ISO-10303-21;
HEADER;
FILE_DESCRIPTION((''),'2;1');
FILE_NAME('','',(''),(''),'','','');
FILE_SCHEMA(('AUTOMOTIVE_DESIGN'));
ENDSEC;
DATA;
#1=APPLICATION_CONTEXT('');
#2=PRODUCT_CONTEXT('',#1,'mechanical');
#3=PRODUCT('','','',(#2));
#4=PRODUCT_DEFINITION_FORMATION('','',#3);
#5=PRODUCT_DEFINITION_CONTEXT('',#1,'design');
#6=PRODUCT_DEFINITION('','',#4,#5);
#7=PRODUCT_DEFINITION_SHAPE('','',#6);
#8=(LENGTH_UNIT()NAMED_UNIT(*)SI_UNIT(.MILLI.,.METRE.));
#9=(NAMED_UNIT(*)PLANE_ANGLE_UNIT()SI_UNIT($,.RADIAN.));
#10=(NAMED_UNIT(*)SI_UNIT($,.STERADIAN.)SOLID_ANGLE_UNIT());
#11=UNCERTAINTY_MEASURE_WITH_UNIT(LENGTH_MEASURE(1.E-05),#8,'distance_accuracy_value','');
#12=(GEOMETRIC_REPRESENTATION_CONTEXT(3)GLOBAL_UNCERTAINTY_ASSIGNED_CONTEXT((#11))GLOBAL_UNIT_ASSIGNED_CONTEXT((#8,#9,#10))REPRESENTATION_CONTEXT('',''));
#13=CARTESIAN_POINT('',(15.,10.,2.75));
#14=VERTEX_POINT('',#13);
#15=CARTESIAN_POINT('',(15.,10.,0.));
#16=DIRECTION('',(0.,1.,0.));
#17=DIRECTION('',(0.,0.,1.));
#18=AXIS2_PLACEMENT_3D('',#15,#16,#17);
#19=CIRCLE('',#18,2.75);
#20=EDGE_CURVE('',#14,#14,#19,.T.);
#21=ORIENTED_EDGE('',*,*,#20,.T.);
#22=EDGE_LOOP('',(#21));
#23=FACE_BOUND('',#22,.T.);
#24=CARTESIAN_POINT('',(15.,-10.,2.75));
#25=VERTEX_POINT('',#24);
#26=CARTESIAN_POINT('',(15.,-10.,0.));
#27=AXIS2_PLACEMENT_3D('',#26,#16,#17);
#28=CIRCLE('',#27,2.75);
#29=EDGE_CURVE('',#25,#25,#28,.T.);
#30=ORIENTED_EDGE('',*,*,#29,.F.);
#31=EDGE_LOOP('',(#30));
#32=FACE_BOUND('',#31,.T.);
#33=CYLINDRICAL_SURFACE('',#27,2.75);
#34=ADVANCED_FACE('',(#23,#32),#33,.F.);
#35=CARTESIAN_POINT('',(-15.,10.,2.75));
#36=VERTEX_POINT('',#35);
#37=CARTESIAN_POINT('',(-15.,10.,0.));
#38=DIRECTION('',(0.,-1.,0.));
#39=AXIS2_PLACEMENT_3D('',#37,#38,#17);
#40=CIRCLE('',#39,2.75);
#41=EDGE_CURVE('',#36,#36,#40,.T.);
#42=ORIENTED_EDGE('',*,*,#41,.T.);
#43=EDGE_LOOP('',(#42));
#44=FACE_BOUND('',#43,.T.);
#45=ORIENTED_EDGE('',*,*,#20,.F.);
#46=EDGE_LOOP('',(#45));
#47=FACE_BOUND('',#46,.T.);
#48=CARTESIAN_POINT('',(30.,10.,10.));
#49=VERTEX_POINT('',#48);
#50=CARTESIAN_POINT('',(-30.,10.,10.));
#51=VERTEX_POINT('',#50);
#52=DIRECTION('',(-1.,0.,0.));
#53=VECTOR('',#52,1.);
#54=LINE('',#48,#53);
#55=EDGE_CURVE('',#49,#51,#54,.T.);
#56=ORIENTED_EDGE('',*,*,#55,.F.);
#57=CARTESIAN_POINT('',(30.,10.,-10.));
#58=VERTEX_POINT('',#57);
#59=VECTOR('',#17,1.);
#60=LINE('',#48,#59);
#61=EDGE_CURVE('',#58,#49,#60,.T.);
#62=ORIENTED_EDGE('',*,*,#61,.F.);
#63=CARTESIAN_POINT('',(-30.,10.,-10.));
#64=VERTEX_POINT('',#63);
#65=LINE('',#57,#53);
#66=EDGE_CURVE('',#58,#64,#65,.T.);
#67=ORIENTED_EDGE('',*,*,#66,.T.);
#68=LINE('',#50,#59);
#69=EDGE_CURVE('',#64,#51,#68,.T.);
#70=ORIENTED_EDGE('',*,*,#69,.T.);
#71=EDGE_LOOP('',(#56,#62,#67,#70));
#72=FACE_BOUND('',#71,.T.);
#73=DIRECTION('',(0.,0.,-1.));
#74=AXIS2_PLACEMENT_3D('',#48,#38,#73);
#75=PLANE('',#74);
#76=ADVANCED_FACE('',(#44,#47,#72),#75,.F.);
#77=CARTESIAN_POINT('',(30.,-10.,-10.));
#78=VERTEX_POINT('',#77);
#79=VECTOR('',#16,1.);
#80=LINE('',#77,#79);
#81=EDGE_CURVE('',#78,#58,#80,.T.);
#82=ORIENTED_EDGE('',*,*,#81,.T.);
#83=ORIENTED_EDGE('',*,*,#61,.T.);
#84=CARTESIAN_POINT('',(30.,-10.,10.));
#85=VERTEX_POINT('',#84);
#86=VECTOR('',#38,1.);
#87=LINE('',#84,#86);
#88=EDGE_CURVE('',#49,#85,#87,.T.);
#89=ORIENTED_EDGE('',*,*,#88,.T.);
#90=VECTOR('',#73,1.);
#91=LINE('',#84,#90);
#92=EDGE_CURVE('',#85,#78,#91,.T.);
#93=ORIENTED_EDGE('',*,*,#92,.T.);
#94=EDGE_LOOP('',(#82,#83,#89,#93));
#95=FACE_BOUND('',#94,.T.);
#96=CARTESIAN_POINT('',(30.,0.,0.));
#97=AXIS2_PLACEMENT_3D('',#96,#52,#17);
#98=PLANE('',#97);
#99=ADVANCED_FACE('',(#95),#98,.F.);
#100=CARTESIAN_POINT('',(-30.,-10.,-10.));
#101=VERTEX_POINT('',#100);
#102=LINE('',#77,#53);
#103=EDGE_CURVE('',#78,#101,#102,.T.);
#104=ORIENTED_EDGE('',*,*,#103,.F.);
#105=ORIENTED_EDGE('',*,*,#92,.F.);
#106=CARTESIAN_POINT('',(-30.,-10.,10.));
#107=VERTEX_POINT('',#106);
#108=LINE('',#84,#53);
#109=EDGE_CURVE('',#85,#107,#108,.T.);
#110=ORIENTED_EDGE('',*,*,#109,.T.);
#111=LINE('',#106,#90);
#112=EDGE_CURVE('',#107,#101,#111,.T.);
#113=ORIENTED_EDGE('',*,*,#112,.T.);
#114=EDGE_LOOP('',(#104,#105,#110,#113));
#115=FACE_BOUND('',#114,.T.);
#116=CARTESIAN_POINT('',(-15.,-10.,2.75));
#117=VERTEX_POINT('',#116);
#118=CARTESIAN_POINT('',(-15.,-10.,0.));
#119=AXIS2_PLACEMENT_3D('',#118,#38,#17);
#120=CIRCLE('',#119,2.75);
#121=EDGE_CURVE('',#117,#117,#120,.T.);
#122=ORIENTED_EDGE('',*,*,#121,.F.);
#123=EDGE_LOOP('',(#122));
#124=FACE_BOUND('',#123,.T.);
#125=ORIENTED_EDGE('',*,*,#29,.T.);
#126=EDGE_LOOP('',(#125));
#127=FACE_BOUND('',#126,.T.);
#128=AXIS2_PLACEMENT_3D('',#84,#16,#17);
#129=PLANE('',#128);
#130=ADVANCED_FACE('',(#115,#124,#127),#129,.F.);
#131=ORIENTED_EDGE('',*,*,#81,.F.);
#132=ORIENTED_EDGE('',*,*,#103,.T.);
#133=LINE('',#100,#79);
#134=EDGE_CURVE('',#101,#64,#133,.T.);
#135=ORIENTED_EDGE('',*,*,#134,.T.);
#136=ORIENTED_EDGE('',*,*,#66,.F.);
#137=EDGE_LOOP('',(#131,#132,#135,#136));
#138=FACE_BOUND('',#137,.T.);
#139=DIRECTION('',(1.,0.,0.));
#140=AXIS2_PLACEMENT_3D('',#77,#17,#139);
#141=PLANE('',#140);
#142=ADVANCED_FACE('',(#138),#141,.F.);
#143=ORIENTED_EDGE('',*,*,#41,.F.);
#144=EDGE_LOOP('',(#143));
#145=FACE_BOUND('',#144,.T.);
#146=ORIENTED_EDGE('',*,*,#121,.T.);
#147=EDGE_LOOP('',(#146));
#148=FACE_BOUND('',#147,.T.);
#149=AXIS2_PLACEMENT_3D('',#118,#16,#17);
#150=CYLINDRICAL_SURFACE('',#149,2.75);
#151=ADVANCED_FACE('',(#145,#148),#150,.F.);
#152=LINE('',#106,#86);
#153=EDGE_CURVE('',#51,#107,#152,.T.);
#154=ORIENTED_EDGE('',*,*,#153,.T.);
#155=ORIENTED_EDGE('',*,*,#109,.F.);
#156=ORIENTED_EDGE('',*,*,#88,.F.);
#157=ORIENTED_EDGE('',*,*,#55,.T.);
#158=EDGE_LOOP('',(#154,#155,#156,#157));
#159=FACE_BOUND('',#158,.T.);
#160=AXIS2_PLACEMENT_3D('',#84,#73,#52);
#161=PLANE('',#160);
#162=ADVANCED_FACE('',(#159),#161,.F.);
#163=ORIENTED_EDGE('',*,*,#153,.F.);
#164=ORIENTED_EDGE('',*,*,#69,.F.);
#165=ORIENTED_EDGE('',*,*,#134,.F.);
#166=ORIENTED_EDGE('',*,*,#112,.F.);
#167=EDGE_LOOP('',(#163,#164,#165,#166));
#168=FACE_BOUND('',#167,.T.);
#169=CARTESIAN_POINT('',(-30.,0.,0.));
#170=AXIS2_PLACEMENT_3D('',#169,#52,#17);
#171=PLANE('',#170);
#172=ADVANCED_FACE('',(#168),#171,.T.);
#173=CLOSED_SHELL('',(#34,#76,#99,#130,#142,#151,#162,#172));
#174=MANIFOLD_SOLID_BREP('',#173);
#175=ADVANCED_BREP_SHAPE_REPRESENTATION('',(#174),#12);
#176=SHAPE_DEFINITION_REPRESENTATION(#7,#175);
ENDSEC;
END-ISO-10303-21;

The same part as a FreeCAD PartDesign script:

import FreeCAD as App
import Part
import Sketcher
Q = App.Units.Quantity


def add_polygon(sketch, points):
    """Adds a closed chain of lines whose ends are joined by coincident constraints."""
    first, n = sketch.GeometryCount, len(points)
    for a, b in zip(points, points[1:] + points[:1]):
        sketch.addGeometry(Part.LineSegment(App.Vector(*a, 0), App.Vector(*b, 0)), False)
    for i in range(n):
        sketch.addConstraint(Sketcher.Constraint("Coincident", first + i, 2, first + (i + 1) % n, 1))

doc = App.newDocument("Part")
params = doc.addObject("Spreadsheet::Sheet", "Params")
for row, (alias, value) in enumerate([
    ("sketch1_width", "20 mm"),
    ("pad1_length", "60 mm"),
    ("sketch2_diameter", "5.5 mm"),
], start=1):
    params.set(f"A{row}", alias)
    params.set(f"B{row}", "=" + value)
    params.setAlias(f"B{row}", alias)

body = doc.addObject("PartDesign::Body", "Body")

# Sketch on YZ plane
sketch1 = body.newObject("Sketcher::SketchObject", "Sketch")
sketch1.AttachmentSupport = (doc.getObject("YZ_Plane"), [""])
sketch1.MapMode = "FlatFace"
add_polygon(sketch1, [(10, 10), (-10, 10), (-10, -10), (10, -10)])  # lines 0-3
sketch1.addConstraint(Sketcher.Constraint("Horizontal", 0))
sketch1.addConstraint(Sketcher.Constraint("Vertical", 1))
sketch1.addConstraint(Sketcher.Constraint("Horizontal", 2))
sketch1.addConstraint(Sketcher.Constraint("Vertical", 3))
sketch1.addConstraint(Sketcher.Constraint("Symmetric", 0, 2, 2, 2, -1, 1))
sketch1.addConstraint(Sketcher.Constraint("Equal", 2, 1))
sketch1.addConstraint(Sketcher.Constraint("DistanceX", 0, 2, 0, 1, Q("20 mm")))
sketch1.setExpression("Constraints[10]", "Params.sketch1_width")
pad1 = body.newObject("PartDesign::Pad", "Pad")
pad1.Profile = sketch1
pad1.setExpression("Length", "Params.pad1_length")
pad1.Midplane = True

# Sketch on XZ plane
sketch2 = body.newObject("Sketcher::SketchObject", "Sketch001")
sketch2.AttachmentSupport = (doc.getObject("XZ_Plane"), [""])
sketch2.MapMode = "FlatFace"
sketch2.AttachmentOffset = App.Placement(App.Vector(0, 0, -10), App.Rotation())
sketch2.addGeometry(Part.Circle(App.Vector(15, 0, 0), App.Vector(0, 0, 1), 2.8), False)
sketch2.addConstraint(Sketcher.Constraint("PointOnObject", 0, 3, -1))
sketch2.addConstraint(Sketcher.Constraint("Diameter", 0, Q("5.5 mm")))
sketch2.addConstraint(Sketcher.Constraint("DistanceX", -1, 1, 0, 3, Q("15 mm")))
sketch2.setExpression("Constraints[1]", "Params.sketch2_diameter")
pocket1 = body.newObject("PartDesign::Pocket", "Pocket")
pocket1.Profile = sketch2
pocket1.Type = "ThroughAll"
pocket1.Reversed = True
doc.recompute()

mirrored = body.newObject("PartDesign::Mirrored", "Mirrored")
mirrored.Originals = [pocket1]
mirrored.MirrorPlane = (doc.getObject("YZ_Plane"), [""])
body.Tip = mirrored

doc.recompute()
